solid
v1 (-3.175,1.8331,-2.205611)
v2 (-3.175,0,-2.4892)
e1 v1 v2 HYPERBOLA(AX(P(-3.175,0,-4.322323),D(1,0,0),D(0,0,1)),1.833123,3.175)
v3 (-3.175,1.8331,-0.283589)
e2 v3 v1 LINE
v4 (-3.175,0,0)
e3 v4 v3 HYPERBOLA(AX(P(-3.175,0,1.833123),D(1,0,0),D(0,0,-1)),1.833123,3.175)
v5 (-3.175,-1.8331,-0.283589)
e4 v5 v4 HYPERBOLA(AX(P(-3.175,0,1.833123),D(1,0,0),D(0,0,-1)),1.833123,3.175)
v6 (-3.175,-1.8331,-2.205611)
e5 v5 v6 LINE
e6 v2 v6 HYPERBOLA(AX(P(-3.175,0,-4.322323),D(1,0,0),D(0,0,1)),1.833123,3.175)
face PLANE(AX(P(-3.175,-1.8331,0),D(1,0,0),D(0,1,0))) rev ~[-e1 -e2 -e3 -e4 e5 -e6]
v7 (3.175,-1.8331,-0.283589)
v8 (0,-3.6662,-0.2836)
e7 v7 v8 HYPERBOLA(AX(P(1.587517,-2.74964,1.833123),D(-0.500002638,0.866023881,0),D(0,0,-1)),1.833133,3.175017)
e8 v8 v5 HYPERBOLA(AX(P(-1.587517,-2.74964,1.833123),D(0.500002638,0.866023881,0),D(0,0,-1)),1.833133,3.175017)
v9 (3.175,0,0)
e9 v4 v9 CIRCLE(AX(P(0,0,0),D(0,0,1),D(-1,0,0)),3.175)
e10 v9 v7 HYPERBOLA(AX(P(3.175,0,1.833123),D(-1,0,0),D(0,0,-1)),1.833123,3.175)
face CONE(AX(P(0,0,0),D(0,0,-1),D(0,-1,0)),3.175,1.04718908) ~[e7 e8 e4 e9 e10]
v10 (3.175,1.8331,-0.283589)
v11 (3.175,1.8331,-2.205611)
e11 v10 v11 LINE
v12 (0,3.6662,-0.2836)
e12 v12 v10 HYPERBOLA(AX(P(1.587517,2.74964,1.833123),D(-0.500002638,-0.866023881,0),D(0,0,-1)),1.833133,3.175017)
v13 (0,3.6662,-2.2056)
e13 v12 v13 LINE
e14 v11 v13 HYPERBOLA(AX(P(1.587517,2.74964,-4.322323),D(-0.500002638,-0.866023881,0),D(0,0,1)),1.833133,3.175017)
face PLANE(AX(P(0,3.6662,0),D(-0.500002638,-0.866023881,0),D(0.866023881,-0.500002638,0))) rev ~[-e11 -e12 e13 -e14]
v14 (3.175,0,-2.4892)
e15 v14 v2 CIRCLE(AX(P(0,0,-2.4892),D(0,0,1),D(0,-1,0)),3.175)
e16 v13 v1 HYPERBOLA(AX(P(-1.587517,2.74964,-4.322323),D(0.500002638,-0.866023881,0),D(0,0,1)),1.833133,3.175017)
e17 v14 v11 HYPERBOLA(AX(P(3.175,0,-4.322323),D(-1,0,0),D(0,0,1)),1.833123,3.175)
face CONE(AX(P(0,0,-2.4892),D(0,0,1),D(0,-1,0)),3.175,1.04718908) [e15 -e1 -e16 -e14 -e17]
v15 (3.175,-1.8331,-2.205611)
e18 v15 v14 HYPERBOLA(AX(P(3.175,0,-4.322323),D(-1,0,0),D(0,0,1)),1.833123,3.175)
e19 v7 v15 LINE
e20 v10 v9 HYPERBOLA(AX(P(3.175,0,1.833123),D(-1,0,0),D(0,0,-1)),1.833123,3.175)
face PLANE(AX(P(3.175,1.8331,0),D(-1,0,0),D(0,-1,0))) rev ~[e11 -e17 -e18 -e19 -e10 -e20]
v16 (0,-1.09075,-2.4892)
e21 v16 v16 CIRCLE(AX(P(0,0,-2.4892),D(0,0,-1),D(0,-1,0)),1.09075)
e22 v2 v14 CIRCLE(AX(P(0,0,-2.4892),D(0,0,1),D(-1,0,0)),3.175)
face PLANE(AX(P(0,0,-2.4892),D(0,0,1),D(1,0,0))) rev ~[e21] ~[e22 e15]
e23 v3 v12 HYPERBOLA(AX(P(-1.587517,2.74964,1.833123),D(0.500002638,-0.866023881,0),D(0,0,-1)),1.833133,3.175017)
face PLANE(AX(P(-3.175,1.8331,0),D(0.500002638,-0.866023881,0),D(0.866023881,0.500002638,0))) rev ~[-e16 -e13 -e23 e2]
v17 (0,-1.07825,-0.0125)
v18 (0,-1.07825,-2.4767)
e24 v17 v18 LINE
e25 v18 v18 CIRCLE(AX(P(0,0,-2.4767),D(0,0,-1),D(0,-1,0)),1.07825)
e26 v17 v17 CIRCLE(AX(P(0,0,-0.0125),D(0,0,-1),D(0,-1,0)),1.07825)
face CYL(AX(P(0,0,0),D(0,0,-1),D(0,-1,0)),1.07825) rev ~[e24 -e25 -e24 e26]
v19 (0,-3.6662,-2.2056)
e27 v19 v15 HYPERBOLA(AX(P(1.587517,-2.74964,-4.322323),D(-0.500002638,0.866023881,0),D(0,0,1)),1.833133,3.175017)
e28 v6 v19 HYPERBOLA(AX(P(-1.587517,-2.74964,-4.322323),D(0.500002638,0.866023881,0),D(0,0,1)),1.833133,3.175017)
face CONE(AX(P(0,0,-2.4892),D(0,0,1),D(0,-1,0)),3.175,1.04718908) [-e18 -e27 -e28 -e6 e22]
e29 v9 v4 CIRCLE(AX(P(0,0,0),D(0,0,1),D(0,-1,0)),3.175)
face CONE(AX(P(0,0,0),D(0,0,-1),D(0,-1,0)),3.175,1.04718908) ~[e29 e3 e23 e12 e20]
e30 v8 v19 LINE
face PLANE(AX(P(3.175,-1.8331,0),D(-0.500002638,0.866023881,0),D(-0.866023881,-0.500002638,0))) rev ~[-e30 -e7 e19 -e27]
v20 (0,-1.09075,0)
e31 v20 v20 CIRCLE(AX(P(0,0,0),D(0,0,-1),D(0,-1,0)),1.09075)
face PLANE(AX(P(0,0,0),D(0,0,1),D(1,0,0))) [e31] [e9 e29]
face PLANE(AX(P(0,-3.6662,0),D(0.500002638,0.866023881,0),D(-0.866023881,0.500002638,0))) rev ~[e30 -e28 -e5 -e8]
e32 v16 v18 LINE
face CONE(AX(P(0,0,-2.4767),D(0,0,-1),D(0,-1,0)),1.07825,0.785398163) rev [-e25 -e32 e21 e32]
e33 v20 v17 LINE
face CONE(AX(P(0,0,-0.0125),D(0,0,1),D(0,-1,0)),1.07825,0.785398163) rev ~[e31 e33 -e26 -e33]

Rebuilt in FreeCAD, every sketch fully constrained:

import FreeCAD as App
import Part
import Sketcher
from FreeCAD import Vector
Q = App.Units.Quantity


def edges_at(feature, points):
    """Names of the edges that pass closest to the given points."""
    edges = feature.Shape.Edges
    near = lambda p: min(range(len(edges)), key=lambda i: edges[i].distToShape(Part.Vertex(*p))[0])
    return sorted({f"Edge{near(p) + 1}" for p in points})


def add_polygon(sketch, points):
    """Adds a closed chain of lines whose ends are joined by coincident constraints."""
    first, n = sketch.GeometryCount, len(points)
    for a, b in zip(points, points[1:] + points[:1]):
        sketch.addGeometry(Part.LineSegment(App.Vector(*a, 0), App.Vector(*b, 0)), False)
    for i in range(n):
        sketch.addConstraint(Sketcher.Constraint("Coincident", first + i, 2, first + (i + 1) % n, 1))

doc = App.newDocument("Part")
body = doc.addObject("PartDesign::Body", "Body")

# Sketch on XY plane
sketch1 = body.newObject("Sketcher::SketchObject", "Sketch")
sketch1.AttachmentSupport = (doc.getObject("XY_Plane"), [""])
sketch1.MapMode = "FlatFace"
add_polygon(sketch1, [(-3.2, 1.8), (-3.2, -1.8), (0, -3.7), (3.2, -1.8), (3.2, 1.8), (0, 3.7)])  # lines 0-5
sketch1.addConstraint([
    Sketcher.Constraint("Vertical", 0),
    Sketcher.Constraint("Vertical", 3),
    Sketcher.Constraint("Symmetric", 0, 2, 3, 2, -1, 1),
    Sketcher.Constraint("Symmetric", 1, 2, 4, 2, -1, 1),
    Sketcher.Constraint("PointOnObject", 1, 2, -2),
    Sketcher.Constraint("Parallel", 2, 5),
    Sketcher.Constraint("Horizontal", 0, 2, 2, 2),
    Sketcher.Constraint("DistanceX", 0, 2, 2, 2, Q("0.25 in")),
    Sketcher.Constraint("Angle", 1, Q("-30.0002 deg")),
    Sketcher.Constraint("DistanceY", 0, 2, 0, 1, Q("3.6662 mm")),
])
pad1 = body.newObject("PartDesign::Pad", "Pad")
pad1.Profile = sketch1
pad1.Length = Q("0.098 in")
pad1.Reversed = True

# Sketch on XY plane
sketch2 = body.newObject("Sketcher::SketchObject", "Sketch001")
sketch2.AttachmentSupport = (doc.getObject("XY_Plane"), [""])
sketch2.MapMode = "FlatFace"
sketch2.addGeometry(Part.Circle(Vector(0, 0, 0), Vector(0, 0, 1), 1.1), False)
sketch2.addConstraint([
    Sketcher.Constraint("Coincident", 0, 3, -1, 1),
    Sketcher.Constraint("Diameter", 0, Q("0.0849 in")),
])
doc.recompute()
hole = body.newObject("PartDesign::Hole", "Hole")
hole.Profile = sketch2
hole.ThreadType = "None"
hole.Diameter = Q("0.0849016 in")
hole.DepthType = "ThroughAll"
doc.recompute()

chamfer = body.newObject("PartDesign::Chamfer", "Chamfer")
chamfer.Base = (hole, edges_at(hole, [(0, 1.078, 0), (0, 1.078, -2.489)]))
chamfer.Size = Q("0.0004921 in")

# Sketch on YZ plane
sketch3 = body.newObject("Sketcher::SketchObject", "Sketch002")
sketch3.AttachmentSupport = (doc.getObject("YZ_Plane"), [""])
sketch3.MapMode = "FlatFace"
add_polygon(sketch3, [(-3.17, -2.49), (-3.67, -2.21), (-3.67, -2.49)])  # lines 0-2
sketch3.addConstraint([
    Sketcher.Constraint("Vertical", 1),
    Sketcher.Constraint("Horizontal", 2),
    Sketcher.Constraint("Angle", 0, Q("149.9995 deg")),
    Sketcher.Constraint("DistanceY", 1, 2, -1, 1, Q("0.098 in")),
    Sketcher.Constraint("DistanceX", 2, 2, -1, 1, Q("0.125 in")),
    Sketcher.Constraint("DistanceX", 2, 1, 2, 2, Q("0.4912 mm")),
])
groove = body.newObject("PartDesign::Groove", "Groove")
groove.Profile = sketch3
groove.ReferenceAxis = (sketch3, ["V_Axis"])
groove.Angle = 360

# Sketch on YZ plane
sketch4 = body.newObject("Sketcher::SketchObject", "Sketch003")
sketch4.AttachmentSupport = (doc.getObject("YZ_Plane"), [""])
sketch4.MapMode = "FlatFace"
add_polygon(sketch4, [(-3.67, 0), (-3.67, -0.28), (-3.17, 0)])  # lines 0-2
sketch4.addConstraint([
    Sketcher.Constraint("Vertical", 0),
    Sketcher.Constraint("Horizontal", 2),
    Sketcher.Constraint("PointOnObject", 1, 2, -1),
    Sketcher.Constraint("Angle", 1, Q("30.0005 deg")),
    Sketcher.Constraint("DistanceX", 1, 2, -1, 1, Q("0.125 in")),
    Sketcher.Constraint("DistanceX", 2, 2, 2, 1, Q("0.4912 mm")),
])
groove2 = body.newObject("PartDesign::Groove", "Groove001")
groove2.Profile = sketch4
groove2.ReferenceAxis = (sketch4, ["V_Axis"])
groove2.Angle = 360

doc.recompute()
